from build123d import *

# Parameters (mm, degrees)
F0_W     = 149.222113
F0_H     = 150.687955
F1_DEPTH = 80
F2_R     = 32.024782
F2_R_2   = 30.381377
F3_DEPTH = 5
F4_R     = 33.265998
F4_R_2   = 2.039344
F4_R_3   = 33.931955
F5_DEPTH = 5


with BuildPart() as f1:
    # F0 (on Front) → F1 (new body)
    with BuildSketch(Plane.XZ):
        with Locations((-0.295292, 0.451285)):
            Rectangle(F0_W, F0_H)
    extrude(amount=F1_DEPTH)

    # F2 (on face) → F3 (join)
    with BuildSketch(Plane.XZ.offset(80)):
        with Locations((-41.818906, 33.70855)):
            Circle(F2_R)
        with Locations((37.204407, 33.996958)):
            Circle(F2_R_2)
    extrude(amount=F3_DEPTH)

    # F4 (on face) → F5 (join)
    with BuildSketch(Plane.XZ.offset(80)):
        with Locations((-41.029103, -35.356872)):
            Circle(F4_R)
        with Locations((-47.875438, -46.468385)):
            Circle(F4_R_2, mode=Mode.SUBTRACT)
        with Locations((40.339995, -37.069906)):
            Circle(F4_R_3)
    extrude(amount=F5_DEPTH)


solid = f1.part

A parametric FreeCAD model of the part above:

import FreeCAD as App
import Part
import Sketcher
from FreeCAD import Vector
Q = App.Units.Quantity


def add_polygon(sketch, points):
    """Adds a closed chain of lines whose ends are joined by coincident constraints."""
    first, n = sketch.GeometryCount, len(points)
    for a, b in zip(points, points[1:] + points[:1]):
        sketch.addGeometry(Part.LineSegment(App.Vector(*a, 0), App.Vector(*b, 0)), False)
    for i in range(n):
        sketch.addConstraint(Sketcher.Constraint("Coincident", first + i, 2, first + (i + 1) % n, 1))

doc = App.newDocument("Part")
body = doc.addObject("PartDesign::Body", "Body")

# Sketch on XZ plane
sketch1 = body.newObject("Sketcher::SketchObject", "Sketch")
sketch1.AttachmentSupport = (doc.getObject("XZ_Plane"), [""])
sketch1.MapMode = "FlatFace"
add_polygon(sketch1, [(-74.906348, 75.795263), (-74.906348, -74.892692), (74.315765, -74.892692), (74.315765, 75.795263)])  # lines 0-3
sketch1.addConstraint([
    Sketcher.Constraint("Vertical", 0),
    Sketcher.Constraint("Horizontal", 1),
    Sketcher.Constraint("Vertical", 2),
    Sketcher.Constraint("Horizontal", 3),
    Sketcher.Constraint("DistanceX", 1, 1, 1, 2, Q("149.222113 mm")),
    Sketcher.Constraint("DistanceY", 0, 2, 0, 1, Q("150.687955 mm")),
    Sketcher.Constraint("DistanceX", 0, 2, -1, 1, Q("74.906348 mm")),
    Sketcher.Constraint("DistanceY", 0, 2, -1, 1, Q("74.892692 mm")),
])
pad1 = body.newObject("PartDesign::Pad", "Pad")
pad1.Profile = sketch1
pad1.Length = 80

# Sketch on XZ plane
sketch2 = body.newObject("Sketcher::SketchObject", "Sketch001")
sketch2.AttachmentSupport = (doc.getObject("XZ_Plane"), [""])
sketch2.MapMode = "FlatFace"
sketch2.AttachmentOffset = App.Placement(Vector(0, 0, 80), App.Rotation())
sketch2.addGeometry([
    Part.Circle(Vector(-41.818906, 33.70855, 0), Vector(0, 0, 1), 32.024782),
    Part.Circle(Vector(37.204407, 33.996958, 0), Vector(0, 0, 1), 30.381377),
], False)
sketch2.addConstraint([
    Sketcher.Constraint("Diameter", 0, Q("64.049564 mm")),
    Sketcher.Constraint("Diameter", 1, Q("60.762754 mm")),
    Sketcher.Constraint("DistanceY", -1, 1, 0, 3, Q("33.70855 mm")),
    Sketcher.Constraint("DistanceX", 0, 3, -1, 1, Q("41.818906 mm")),
    Sketcher.Constraint("DistanceX", -1, 1, 1, 3, Q("37.204407 mm")),
    Sketcher.Constraint("DistanceY", -1, 1, 1, 3, Q("33.996958 mm")),
])
pad2 = body.newObject("PartDesign::Pad", "Pad001")
pad2.Profile = sketch2
pad2.Length = 5

# Sketch on XZ plane
sketch3 = body.newObject("Sketcher::SketchObject", "Sketch002")
sketch3.AttachmentSupport = (doc.getObject("XZ_Plane"), [""])
sketch3.MapMode = "FlatFace"
sketch3.AttachmentOffset = App.Placement(Vector(0, 0, 80), App.Rotation())
sketch3.addGeometry([
    Part.Circle(Vector(-41.029103, -35.356872, 0), Vector(0, 0, 1), 33.265998),
    Part.Circle(Vector(-47.875438, -46.468385, 0), Vector(0, 0, 1), 2.039344),
    Part.Circle(Vector(40.339995, -37.069906, 0), Vector(0, 0, 1), 33.931955),
], False)
sketch3.addConstraint([
    Sketcher.Constraint("Diameter", 2, Q("67.86391 mm")),
    Sketcher.Constraint("Diameter", 0, Q("66.531996 mm")),
    Sketcher.Constraint("Diameter", 1, Q("4.078688 mm")),
    Sketcher.Constraint("DistanceX", 0, 3, 2, 3, Q("81.369098 mm")),
    Sketcher.Constraint("DistanceX", 1, 3, -1, 1, Q("47.875438 mm")),
    Sketcher.Constraint("DistanceY", 1, 3, 2, 3, Q("9.398479 mm")),
    Sketcher.Constraint("DistanceX", 0, 3, -1, 1, Q("41.029103 mm")),
    Sketcher.Constraint("DistanceY", 0, 3, -1, 1, Q("35.356872 mm")),
    Sketcher.Constraint("DistanceY", 1, 3, -1, 1, Q("46.468385 mm")),
])
pad3 = body.newObject("PartDesign::Pad", "Pad002")
pad3.Profile = sketch3
pad3.Length = 5

doc.recompute()
